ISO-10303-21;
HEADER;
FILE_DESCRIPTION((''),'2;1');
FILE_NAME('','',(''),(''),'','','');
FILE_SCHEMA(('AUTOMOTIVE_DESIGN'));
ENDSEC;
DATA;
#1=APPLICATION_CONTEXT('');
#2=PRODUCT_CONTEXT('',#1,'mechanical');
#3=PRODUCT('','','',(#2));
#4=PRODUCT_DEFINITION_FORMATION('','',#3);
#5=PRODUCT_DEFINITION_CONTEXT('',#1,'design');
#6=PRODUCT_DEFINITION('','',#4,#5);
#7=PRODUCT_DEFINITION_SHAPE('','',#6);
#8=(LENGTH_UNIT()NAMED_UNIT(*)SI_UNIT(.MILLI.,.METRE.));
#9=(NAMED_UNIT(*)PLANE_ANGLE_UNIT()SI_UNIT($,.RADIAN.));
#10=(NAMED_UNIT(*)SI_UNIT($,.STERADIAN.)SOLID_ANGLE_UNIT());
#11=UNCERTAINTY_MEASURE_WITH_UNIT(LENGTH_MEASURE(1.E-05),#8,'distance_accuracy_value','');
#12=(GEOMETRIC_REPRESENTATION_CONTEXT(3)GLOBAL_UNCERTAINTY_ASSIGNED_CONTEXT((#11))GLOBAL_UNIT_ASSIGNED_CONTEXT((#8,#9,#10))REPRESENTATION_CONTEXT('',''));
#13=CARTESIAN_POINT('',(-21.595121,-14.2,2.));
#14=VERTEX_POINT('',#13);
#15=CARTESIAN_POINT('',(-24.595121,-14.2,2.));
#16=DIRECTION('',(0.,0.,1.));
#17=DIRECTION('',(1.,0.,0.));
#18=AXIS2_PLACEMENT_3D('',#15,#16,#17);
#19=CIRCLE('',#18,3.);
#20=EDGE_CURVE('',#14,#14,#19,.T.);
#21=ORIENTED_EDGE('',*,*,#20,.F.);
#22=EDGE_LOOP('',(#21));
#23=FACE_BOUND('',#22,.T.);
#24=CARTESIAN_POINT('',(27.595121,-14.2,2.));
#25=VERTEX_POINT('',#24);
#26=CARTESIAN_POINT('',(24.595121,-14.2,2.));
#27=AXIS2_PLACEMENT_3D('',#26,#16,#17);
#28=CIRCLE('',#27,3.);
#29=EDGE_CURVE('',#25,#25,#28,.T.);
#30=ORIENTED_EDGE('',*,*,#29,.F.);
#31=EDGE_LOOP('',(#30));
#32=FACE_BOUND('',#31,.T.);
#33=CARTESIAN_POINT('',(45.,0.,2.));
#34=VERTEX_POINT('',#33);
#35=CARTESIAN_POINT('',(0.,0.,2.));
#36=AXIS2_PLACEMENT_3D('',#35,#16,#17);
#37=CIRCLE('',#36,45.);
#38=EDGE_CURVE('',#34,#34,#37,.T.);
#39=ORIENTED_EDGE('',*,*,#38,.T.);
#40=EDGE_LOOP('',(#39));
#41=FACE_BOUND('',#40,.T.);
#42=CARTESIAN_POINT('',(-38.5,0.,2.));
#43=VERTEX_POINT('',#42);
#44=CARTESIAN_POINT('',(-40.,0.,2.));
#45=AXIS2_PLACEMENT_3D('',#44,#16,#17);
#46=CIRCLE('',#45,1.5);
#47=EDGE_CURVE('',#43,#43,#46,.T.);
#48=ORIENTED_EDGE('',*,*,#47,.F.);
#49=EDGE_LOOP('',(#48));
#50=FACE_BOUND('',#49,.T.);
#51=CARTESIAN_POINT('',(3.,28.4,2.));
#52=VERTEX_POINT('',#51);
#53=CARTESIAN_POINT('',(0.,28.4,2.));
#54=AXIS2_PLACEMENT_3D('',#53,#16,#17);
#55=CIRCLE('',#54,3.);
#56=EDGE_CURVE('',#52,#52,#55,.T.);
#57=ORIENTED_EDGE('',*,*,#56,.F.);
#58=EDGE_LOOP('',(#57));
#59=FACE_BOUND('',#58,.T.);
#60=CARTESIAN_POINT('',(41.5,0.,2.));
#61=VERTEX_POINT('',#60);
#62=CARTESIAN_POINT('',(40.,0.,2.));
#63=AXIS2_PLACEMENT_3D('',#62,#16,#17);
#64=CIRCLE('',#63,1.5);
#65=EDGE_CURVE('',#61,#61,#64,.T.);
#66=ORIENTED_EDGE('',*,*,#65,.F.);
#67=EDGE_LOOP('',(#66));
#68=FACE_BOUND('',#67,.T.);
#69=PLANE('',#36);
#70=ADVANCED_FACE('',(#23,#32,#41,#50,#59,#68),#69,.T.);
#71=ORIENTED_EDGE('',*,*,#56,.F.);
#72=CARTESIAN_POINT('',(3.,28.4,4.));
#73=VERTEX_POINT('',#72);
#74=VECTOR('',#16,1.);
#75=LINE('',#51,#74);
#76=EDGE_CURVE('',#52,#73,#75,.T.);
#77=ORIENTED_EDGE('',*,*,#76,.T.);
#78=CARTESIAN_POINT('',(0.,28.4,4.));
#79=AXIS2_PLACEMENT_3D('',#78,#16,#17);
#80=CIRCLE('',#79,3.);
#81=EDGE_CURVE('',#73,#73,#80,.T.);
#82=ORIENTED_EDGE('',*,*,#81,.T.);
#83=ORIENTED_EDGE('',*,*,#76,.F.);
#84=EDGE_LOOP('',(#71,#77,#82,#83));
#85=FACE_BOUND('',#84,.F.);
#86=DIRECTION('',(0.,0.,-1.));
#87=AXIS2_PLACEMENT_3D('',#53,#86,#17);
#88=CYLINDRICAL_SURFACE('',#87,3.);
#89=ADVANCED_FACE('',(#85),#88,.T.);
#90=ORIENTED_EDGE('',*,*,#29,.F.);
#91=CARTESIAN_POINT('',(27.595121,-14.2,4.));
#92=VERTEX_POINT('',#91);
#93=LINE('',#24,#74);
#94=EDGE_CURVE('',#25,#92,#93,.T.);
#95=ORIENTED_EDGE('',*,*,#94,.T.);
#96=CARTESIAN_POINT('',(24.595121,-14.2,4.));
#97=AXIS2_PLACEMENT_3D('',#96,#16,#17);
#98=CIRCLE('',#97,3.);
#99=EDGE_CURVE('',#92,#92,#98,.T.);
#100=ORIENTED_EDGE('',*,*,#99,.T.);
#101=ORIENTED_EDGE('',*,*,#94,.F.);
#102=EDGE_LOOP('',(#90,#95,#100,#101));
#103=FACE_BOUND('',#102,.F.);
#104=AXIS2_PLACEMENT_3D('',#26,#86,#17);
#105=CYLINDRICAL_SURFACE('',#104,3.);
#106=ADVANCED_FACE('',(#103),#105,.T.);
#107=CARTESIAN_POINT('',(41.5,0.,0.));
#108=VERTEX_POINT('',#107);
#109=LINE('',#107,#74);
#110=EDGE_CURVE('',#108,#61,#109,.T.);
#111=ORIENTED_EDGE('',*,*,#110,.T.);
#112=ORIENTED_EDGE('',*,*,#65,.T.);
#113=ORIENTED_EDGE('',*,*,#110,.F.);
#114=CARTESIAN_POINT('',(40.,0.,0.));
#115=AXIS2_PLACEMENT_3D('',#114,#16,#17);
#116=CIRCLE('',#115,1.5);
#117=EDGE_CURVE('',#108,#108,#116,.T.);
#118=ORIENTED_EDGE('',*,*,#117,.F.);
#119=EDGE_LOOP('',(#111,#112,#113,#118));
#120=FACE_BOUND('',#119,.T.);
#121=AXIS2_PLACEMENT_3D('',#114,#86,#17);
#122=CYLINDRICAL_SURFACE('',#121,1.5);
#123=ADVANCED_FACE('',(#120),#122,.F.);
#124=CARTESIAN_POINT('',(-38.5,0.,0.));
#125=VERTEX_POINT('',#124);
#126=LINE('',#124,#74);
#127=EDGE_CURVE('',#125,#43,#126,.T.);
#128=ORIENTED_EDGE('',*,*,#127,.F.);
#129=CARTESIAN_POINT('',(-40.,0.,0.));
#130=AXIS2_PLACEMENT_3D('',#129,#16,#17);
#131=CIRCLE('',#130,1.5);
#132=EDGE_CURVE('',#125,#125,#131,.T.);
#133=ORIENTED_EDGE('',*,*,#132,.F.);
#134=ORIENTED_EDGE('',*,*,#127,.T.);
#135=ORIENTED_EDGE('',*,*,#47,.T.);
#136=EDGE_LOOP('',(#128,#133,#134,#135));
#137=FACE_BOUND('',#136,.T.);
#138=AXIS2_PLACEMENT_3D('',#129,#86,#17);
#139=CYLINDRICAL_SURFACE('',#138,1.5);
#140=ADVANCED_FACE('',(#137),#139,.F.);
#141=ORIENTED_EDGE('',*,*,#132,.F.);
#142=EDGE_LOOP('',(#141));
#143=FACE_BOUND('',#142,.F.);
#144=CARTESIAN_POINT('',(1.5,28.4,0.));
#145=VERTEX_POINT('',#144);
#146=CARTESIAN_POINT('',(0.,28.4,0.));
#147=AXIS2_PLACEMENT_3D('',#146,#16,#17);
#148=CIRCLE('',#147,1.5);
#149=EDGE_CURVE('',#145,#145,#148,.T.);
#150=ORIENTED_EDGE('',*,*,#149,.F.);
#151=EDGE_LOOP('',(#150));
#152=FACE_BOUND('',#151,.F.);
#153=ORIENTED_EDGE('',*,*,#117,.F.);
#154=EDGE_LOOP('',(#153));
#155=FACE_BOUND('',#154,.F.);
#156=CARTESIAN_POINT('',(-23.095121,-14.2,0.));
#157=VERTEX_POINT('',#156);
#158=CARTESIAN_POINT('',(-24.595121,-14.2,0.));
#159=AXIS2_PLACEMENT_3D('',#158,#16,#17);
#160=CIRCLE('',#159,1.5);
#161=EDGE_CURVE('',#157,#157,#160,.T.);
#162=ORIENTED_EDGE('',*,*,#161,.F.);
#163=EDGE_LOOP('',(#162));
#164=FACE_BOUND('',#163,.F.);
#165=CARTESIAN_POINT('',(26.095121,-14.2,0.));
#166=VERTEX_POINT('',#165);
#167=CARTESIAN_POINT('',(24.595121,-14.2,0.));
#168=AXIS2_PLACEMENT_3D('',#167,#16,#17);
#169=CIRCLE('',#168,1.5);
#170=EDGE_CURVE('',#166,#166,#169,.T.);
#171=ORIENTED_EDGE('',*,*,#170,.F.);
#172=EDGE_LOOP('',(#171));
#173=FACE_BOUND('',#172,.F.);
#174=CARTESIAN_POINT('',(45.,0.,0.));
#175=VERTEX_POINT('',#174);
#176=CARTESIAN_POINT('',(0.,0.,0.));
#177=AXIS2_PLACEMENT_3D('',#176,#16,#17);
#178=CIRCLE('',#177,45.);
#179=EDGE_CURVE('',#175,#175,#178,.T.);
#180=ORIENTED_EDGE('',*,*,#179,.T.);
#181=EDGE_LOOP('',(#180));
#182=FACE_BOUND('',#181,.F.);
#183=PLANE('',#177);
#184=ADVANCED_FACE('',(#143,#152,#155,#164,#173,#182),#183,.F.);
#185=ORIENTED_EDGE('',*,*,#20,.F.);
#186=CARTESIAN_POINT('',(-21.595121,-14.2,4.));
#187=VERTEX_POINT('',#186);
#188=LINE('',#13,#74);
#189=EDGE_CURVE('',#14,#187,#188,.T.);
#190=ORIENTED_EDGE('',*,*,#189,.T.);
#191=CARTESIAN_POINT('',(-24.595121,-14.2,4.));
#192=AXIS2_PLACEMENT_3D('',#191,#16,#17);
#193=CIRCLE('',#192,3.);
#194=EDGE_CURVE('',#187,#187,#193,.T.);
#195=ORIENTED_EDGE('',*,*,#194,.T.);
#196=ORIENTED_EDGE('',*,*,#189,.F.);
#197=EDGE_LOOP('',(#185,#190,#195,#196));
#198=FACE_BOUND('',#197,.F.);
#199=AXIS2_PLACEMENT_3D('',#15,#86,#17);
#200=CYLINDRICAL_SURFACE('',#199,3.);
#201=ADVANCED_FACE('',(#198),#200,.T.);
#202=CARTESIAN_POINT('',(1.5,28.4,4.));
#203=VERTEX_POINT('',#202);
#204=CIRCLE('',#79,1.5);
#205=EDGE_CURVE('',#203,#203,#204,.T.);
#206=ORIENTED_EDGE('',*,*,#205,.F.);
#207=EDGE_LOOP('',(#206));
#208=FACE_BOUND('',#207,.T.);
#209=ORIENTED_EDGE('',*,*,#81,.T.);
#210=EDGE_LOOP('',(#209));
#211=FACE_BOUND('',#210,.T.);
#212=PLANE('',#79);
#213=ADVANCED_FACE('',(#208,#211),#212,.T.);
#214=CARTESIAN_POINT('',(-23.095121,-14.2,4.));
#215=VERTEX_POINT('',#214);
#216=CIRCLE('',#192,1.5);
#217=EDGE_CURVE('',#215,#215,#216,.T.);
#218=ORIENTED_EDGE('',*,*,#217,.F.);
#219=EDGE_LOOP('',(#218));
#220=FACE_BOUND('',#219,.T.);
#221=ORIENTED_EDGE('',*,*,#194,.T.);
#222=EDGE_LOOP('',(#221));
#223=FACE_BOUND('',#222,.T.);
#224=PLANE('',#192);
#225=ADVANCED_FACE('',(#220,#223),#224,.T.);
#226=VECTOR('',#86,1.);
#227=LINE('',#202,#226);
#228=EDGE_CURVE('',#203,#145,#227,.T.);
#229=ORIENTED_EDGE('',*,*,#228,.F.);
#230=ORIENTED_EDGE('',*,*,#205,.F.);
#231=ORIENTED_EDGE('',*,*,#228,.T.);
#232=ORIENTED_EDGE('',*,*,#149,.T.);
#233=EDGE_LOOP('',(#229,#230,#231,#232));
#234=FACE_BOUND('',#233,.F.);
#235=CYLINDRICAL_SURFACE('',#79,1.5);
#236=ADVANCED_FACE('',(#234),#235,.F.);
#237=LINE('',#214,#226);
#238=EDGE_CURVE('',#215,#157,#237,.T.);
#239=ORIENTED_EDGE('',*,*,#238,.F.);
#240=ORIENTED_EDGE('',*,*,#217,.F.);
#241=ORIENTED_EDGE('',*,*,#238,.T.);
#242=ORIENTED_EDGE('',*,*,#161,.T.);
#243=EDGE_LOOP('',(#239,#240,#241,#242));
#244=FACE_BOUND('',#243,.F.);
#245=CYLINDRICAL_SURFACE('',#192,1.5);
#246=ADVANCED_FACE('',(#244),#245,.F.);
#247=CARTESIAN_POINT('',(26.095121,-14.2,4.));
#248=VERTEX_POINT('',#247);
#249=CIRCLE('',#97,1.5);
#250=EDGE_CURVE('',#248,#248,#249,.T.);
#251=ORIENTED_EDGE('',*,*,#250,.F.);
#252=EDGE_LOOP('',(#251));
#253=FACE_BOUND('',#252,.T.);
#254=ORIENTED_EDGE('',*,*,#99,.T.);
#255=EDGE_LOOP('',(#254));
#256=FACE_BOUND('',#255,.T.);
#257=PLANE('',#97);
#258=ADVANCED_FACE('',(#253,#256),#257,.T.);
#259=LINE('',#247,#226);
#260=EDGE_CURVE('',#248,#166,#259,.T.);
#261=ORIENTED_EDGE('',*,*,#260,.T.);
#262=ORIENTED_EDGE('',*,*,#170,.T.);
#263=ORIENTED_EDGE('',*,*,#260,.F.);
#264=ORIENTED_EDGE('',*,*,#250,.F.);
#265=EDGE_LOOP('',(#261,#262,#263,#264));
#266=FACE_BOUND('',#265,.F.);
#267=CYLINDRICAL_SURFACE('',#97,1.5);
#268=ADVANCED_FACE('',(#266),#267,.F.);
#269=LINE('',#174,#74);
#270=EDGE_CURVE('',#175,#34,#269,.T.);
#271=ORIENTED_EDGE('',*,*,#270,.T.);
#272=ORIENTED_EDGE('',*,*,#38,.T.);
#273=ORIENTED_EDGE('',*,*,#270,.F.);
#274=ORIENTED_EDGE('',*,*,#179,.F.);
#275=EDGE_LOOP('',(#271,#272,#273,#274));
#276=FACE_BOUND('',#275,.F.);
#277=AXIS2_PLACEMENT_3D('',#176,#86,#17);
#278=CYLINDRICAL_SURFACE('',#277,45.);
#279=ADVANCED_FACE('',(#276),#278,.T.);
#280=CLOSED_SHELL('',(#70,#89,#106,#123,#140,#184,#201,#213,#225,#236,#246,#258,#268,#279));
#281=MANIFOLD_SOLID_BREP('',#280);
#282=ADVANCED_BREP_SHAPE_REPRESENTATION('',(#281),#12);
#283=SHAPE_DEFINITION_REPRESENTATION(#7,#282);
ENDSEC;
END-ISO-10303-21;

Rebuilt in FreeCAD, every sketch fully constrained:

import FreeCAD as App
import Part
import Sketcher
from FreeCAD import Vector
Q = App.Units.Quantity

doc = App.newDocument("Part")
body = doc.addObject("PartDesign::Body", "Body")

sketch1 = body.newObject("Sketcher::SketchObject", "Sketch")
sketch1.AttachmentSupport = (doc.getObject("XY_Plane"), [""])
sketch1.MapMode = "FlatFace"
sketch1.addGeometry([
    Part.Circle(Vector(0, 0, 0), Vector(0, 0, 1), 45),
    Part.Circle(Vector(-40, 0, 0), Vector(0, 0, 1), 1.5),
    Part.Circle(Vector(40, 0, 0), Vector(0, 0, 1), 1.5),
], False)
sketch1.addConstraint([
    Sketcher.Constraint("Coincident", 0, 3, -1, 1),
    Sketcher.Constraint("Equal", 1, 2),
    Sketcher.Constraint("Symmetric", 1, 3, 2, 3, -1, 1),
    Sketcher.Constraint("PointOnObject", 1, 3, -1),
    Sketcher.Constraint("Diameter", 0, Q("90 mm")),
    Sketcher.Constraint("Diameter", 1, Q("3 mm")),
    Sketcher.Constraint("DistanceX", 1, 3, -1, 1, Q("40 mm")),
])
pad1 = body.newObject("PartDesign::Pad", "Pad")
pad1.Profile = sketch1
pad1.Length = 2

sketch2 = body.newObject("Sketcher::SketchObject", "Sketch001")
sketch2.AttachmentSupport = (doc.getObject("XY_Plane"), [""])
sketch2.MapMode = "FlatFace"
sketch2.AttachmentOffset = App.Placement(Vector(0, 0, 2), App.Rotation())
sketch2.addGeometry([
    Part.Circle(Vector(-24.6, -14.2, 0), Vector(0, 0, 1), 3),
    Part.Circle(Vector(0, 28.4, 0), Vector(0, 0, 1), 3),
    Part.Circle(Vector(24.6, -14.2, 0), Vector(0, 0, 1), 3),
], False)
sketch2.addConstraint([
    Sketcher.Constraint("Equal", 0, 1),
    Sketcher.Constraint("Equal", 1, 2),
    Sketcher.Constraint("Symmetric", 0, 3, 2, 3, -2),
    Sketcher.Constraint("PointOnObject", 1, 3, -2),
    Sketcher.Constraint("Diameter", 0, Q("6 mm")),
    Sketcher.Constraint("DistanceY", 0, 3, -1, 1, Q("14.2 mm")),
    Sketcher.Constraint("DistanceY", -1, 1, 1, 3, Q("28.4 mm")),
    Sketcher.Constraint("DistanceX", 0, 3, -1, 1, Q("24.595121 mm")),
])
pad2 = body.newObject("PartDesign::Pad", "Pad001")
pad2.Profile = sketch2
pad2.Length = 2

sketch3 = body.newObject("Sketcher::SketchObject", "Sketch002")
sketch3.AttachmentSupport = (doc.getObject("XY_Plane"), [""])
sketch3.MapMode = "FlatFace"
sketch3.AttachmentOffset = App.Placement(Vector(0, 0, 4), App.Rotation())
sketch3.addGeometry([
    Part.Circle(Vector(-24.6, -14.2, 0), Vector(0, 0, 1), 1.5),
    Part.Circle(Vector(0, 28.4, 0), Vector(0, 0, 1), 1.5),
    Part.Circle(Vector(24.6, -14.2, 0), Vector(0, 0, 1), 1.5),
], False)
sketch3.addConstraint([
    Sketcher.Constraint("Equal", 0, 1),
    Sketcher.Constraint("Equal", 1, 2),
    Sketcher.Constraint("Symmetric", 0, 3, 2, 3, -2),
    Sketcher.Constraint("PointOnObject", 1, 3, -2),
    Sketcher.Constraint("Diameter", 0, Q("3 mm")),
    Sketcher.Constraint("DistanceY", 0, 3, -1, 1, Q("14.2 mm")),
    Sketcher.Constraint("DistanceY", -1, 1, 1, 3, Q("28.4 mm")),
    Sketcher.Constraint("DistanceX", 0, 3, -1, 1, Q("24.595121 mm")),
])
pocket1 = body.newObject("PartDesign::Pocket", "Pocket")
pocket1.Profile = sketch3
pocket1.Length = 5

doc.recompute()
